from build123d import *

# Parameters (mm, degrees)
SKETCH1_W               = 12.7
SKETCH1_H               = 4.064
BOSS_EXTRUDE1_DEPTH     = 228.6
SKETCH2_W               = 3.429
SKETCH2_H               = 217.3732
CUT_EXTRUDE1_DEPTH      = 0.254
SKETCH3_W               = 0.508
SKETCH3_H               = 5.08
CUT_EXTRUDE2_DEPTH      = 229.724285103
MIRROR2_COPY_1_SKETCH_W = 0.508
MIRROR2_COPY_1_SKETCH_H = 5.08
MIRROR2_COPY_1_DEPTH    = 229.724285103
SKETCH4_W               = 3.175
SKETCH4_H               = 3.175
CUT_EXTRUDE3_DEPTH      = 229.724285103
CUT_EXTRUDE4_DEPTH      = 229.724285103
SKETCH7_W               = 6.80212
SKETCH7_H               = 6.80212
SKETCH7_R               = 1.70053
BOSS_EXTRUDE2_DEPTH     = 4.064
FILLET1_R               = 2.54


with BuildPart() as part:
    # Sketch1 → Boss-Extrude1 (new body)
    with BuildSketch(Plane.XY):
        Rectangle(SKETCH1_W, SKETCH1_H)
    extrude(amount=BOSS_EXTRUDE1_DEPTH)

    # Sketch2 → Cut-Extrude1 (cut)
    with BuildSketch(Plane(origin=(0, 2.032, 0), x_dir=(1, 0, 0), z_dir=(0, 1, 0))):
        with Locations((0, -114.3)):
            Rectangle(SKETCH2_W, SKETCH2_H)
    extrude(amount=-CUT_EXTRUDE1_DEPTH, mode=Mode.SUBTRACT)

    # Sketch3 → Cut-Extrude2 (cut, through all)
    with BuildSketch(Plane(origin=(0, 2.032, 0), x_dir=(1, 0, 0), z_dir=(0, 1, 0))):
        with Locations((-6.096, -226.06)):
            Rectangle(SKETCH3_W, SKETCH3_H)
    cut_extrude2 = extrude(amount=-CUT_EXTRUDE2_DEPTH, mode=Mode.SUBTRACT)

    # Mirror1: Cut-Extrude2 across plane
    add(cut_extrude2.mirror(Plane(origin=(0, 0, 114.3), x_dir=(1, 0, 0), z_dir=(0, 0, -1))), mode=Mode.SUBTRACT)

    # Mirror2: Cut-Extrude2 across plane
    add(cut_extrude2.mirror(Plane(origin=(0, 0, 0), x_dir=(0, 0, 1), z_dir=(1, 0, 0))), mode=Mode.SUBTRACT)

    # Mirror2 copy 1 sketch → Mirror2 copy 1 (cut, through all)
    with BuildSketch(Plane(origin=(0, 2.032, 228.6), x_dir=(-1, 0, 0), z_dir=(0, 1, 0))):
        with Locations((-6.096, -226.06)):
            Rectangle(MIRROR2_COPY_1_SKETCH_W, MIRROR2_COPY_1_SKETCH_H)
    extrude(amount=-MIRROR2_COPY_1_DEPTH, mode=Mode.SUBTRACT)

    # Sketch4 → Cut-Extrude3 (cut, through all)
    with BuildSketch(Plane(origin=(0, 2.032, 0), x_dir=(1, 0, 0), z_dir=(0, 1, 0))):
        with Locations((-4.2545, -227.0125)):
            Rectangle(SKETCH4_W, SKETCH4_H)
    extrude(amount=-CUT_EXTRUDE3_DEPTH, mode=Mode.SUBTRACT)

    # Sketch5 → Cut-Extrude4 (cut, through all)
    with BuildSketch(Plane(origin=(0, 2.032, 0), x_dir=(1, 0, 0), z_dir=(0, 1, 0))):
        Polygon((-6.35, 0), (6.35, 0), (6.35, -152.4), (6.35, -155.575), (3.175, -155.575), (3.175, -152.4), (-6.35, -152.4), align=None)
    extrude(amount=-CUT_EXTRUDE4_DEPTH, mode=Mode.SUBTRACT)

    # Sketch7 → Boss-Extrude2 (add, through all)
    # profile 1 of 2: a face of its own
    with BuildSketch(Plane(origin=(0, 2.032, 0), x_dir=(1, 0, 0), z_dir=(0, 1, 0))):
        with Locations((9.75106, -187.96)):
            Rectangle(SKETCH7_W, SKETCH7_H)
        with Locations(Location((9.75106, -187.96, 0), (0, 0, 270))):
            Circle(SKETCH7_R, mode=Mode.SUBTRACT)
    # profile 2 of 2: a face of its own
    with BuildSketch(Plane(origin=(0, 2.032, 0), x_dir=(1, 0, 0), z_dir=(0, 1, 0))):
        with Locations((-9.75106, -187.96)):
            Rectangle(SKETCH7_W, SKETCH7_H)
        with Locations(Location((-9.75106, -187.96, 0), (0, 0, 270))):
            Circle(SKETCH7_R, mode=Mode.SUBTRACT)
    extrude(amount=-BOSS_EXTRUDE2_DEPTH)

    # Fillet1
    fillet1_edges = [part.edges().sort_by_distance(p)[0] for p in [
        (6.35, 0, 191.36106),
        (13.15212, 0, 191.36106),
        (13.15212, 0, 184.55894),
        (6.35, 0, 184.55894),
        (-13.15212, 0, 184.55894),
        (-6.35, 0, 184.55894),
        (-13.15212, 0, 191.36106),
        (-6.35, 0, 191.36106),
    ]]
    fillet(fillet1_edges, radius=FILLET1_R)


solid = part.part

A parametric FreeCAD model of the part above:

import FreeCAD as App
import Part
import Sketcher

V = App.Vector
Q = App.Units.Quantity


def edges_at(feature, points):
    """Names of the edges that pass closest to the given points."""
    edges = feature.Shape.Edges
    near = lambda p: min(range(len(edges)), key=lambda i: edges[i].distToShape(Part.Vertex(*p))[0])
    return sorted({f"Edge{near(p) + 1}" for p in points})

doc = App.newDocument("Part")
body = doc.addObject("PartDesign::Body", "Body")

# Sketch on XY plane
sketch1 = body.newObject("Sketcher::SketchObject", "Sketch")
sketch1.AttachmentSupport = (doc.getObject("XY_Plane"), [""])
sketch1.MapMode = "FlatFace"
sketch1.addGeometry(Part.LineSegment(V(-6.3, 2, 0), V(-6.3, -2, 0)), False)
sketch1.addGeometry(Part.LineSegment(V(-6.3, -2, 0), V(6.3, -2, 0)), False)
sketch1.addGeometry(Part.LineSegment(V(6.3, -2, 0), V(6.3, 2, 0)), False)
sketch1.addGeometry(Part.LineSegment(V(6.3, 2, 0), V(-6.3, 2, 0)), False)
sketch1.addConstraint(Sketcher.Constraint("Coincident", 0, 2, 1, 1))
sketch1.addConstraint(Sketcher.Constraint("Coincident", 1, 2, 2, 1))
sketch1.addConstraint(Sketcher.Constraint("Coincident", 2, 2, 3, 1))
sketch1.addConstraint(Sketcher.Constraint("Coincident", 3, 2, 0, 1))
sketch1.addConstraint(Sketcher.Constraint("Vertical", 0))
sketch1.addConstraint(Sketcher.Constraint("Horizontal", 1))
sketch1.addConstraint(Sketcher.Constraint("Vertical", 2))
sketch1.addConstraint(Sketcher.Constraint("Horizontal", 3))
sketch1.addConstraint(Sketcher.Constraint("Symmetric", 0, 2, 2, 2, -1, 1))
sketch1.addConstraint(Sketcher.Constraint("DistanceX", 1, 1, 1, 2, Q("0.5 in")))
sketch1.addConstraint(Sketcher.Constraint("DistanceY", 0, 2, 0, 1, Q("0.16 in")))
pad1 = body.newObject("PartDesign::Pad", "Pad")
pad1.Profile = sketch1
pad1.Length = Q("9 in")

# Sketch on XZ plane
sketch2 = body.newObject("Sketcher::SketchObject", "Sketch001")
sketch2.AttachmentSupport = (doc.getObject("XZ_Plane"), [""])
sketch2.MapMode = "FlatFace"
sketch2.AttachmentOffset = App.Placement(V(0, 0, -0.08 * 25.4), App.Rotation())
sketch2.addGeometry(Part.LineSegment(V(-1.7, 5.6, 0), V(-1.7, 223, 0)), False)
sketch2.addGeometry(Part.LineSegment(V(-1.7, 223, 0), V(1.7, 223, 0)), False)
sketch2.addGeometry(Part.LineSegment(V(1.7, 223, 0), V(1.7, 5.6, 0)), False)
sketch2.addGeometry(Part.LineSegment(V(1.7, 5.6, 0), V(-1.7, 5.6, 0)), False)
sketch2.addConstraint(Sketcher.Constraint("Coincident", 0, 2, 1, 1))
sketch2.addConstraint(Sketcher.Constraint("Coincident", 1, 2, 2, 1))
sketch2.addConstraint(Sketcher.Constraint("Coincident", 2, 2, 3, 1))
sketch2.addConstraint(Sketcher.Constraint("Coincident", 3, 2, 0, 1))
sketch2.addConstraint(Sketcher.Constraint("Vertical", 0))
sketch2.addConstraint(Sketcher.Constraint("Horizontal", 1))
sketch2.addConstraint(Sketcher.Constraint("Vertical", 2))
sketch2.addConstraint(Sketcher.Constraint("Horizontal", 3))
sketch2.addConstraint(Sketcher.Constraint("DistanceX", 1, 1, 1, 2, Q("0.135 in")))
sketch2.addConstraint(Sketcher.Constraint("DistanceY", 0, 1, 0, 2, Q("8.558 in")))
sketch2.addConstraint(Sketcher.Constraint("DistanceY", -1, 1, 0, 2, Q("8.779 in")))
sketch2.addConstraint(Sketcher.Constraint("DistanceX", 0, 2, -1, 1, Q("0.0675 in")))
pocket1 = body.newObject("PartDesign::Pocket", "Pocket")
pocket1.Profile = sketch2
pocket1.Length = Q("0.01 in")
pocket1.Reversed = True

# Sketch on XZ plane
sketch3 = body.newObject("Sketcher::SketchObject", "Sketch002")
sketch3.AttachmentSupport = (doc.getObject("XZ_Plane"), [""])
sketch3.MapMode = "FlatFace"
sketch3.AttachmentOffset = App.Placement(V(0, 0, -0.08 * 25.4), App.Rotation())
sketch3.addGeometry(Part.LineSegment(V(-6.3, 223.5, 0), V(-6.3, 228.6, 0)), False)
sketch3.addGeometry(Part.LineSegment(V(-6.3, 228.6, 0), V(-5.8, 228.6, 0)), False)
sketch3.addGeometry(Part.LineSegment(V(-5.8, 228.6, 0), V(-5.8, 223.5, 0)), False)
sketch3.addGeometry(Part.LineSegment(V(-5.8, 223.5, 0), V(-6.3, 223.5, 0)), False)
sketch3.addConstraint(Sketcher.Constraint("Coincident", 0, 2, 1, 1))
sketch3.addConstraint(Sketcher.Constraint("Coincident", 1, 2, 2, 1))
sketch3.addConstraint(Sketcher.Constraint("Coincident", 2, 2, 3, 1))
sketch3.addConstraint(Sketcher.Constraint("Coincident", 3, 2, 0, 1))
sketch3.addConstraint(Sketcher.Constraint("Vertical", 0))
sketch3.addConstraint(Sketcher.Constraint("Horizontal", 1))
sketch3.addConstraint(Sketcher.Constraint("Vertical", 2))
sketch3.addConstraint(Sketcher.Constraint("Horizontal", 3))
sketch3.addConstraint(Sketcher.Constraint("DistanceY", 0, 1, 0, 2, Q("0.2 in")))
sketch3.addConstraint(Sketcher.Constraint("DistanceY", -1, 1, 0, 2, Q("9 in")))
sketch3.addConstraint(Sketcher.Constraint("DistanceX", 1, 1, 1, 2, Q("0.02 in")))
sketch3.addConstraint(Sketcher.Constraint("DistanceX", 0, 2, -1, 1, Q("0.25 in")))
pocket2 = body.newObject("PartDesign::Pocket", "Pocket001")
pocket2.Profile = sketch3
pocket2.Type = "ThroughAll"
pocket2.Reversed = True
doc.recompute()

datumplane = body.newObject("PartDesign::Plane", "DatumPlane")
datumplane.AttachmentSupport = (doc.getObject("XY_Plane"), [""])
datumplane.MapMode = "FlatFace"
datumplane.AttachmentOffset = App.Placement(V(0, 0, 4.5 * 25.4), App.Rotation())
mirrored = body.newObject("PartDesign::Mirrored", "Mirrored")
mirrored.Originals = [pocket2]
mirrored.MirrorPlane = (datumplane, [""])
body.Tip = mirrored
doc.recompute()

mirrored2 = body.newObject("PartDesign::Mirrored", "Mirrored001")
mirrored2.Originals = [pocket2]
mirrored2.MirrorPlane = (doc.getObject("YZ_Plane"), [""])
body.Tip = mirrored2

# Sketch on XZ plane
sketch4 = body.newObject("Sketcher::SketchObject", "Sketch003")
sketch4.AttachmentSupport = (doc.getObject("XZ_Plane"), [""])
sketch4.MapMode = "FlatFace"
sketch4.AttachmentOffset = App.Placement(V(0, 0, -0.08 * 25.4), App.Rotation())
sketch4.addGeometry(Part.LineSegment(V(6.3, 5.1, 0), V(6.3, 0, 0)), False)
sketch4.addGeometry(Part.LineSegment(V(6.3, 0, 0), V(5.8, 0, 0)), False)
sketch4.addGeometry(Part.LineSegment(V(5.8, 0, 0), V(5.8, 5.1, 0)), False)
sketch4.addGeometry(Part.LineSegment(V(5.8, 5.1, 0), V(6.3, 5.1, 0)), False)
sketch4.addConstraint(Sketcher.Constraint("Coincident", 0, 2, 1, 1))
sketch4.addConstraint(Sketcher.Constraint("Coincident", 1, 2, 2, 1))
sketch4.addConstraint(Sketcher.Constraint("Coincident", 2, 2, 3, 1))
sketch4.addConstraint(Sketcher.Constraint("Coincident", 3, 2, 0, 1))
sketch4.addConstraint(Sketcher.Constraint("Vertical", 0))
sketch4.addConstraint(Sketcher.Constraint("Horizontal", 1))
sketch4.addConstraint(Sketcher.Constraint("Vertical", 2))
sketch4.addConstraint(Sketcher.Constraint("Horizontal", 3))
sketch4.addConstraint(Sketcher.Constraint("PointOnObject", 0, 2, -1))
sketch4.addConstraint(Sketcher.Constraint("DistanceY", 0, 2, 0, 1, Q("0.2 in")))
sketch4.addConstraint(Sketcher.Constraint("DistanceX", 1, 2, 1, 1, Q("0.02 in")))
sketch4.addConstraint(Sketcher.Constraint("DistanceX", -1, 1, 0, 2, Q("0.25 in")))
pocket3 = body.newObject("PartDesign::Pocket", "Pocket002")
pocket3.Profile = sketch4
pocket3.Type = "ThroughAll"
pocket3.Reversed = True

# Sketch on XZ plane
sketch5 = body.newObject("Sketcher::SketchObject", "Sketch004")
sketch5.AttachmentSupport = (doc.getObject("XZ_Plane"), [""])
sketch5.MapMode = "FlatFace"
sketch5.AttachmentOffset = App.Placement(V(0, 0, -0.08 * 25.4), App.Rotation())
sketch5.addGeometry(Part.LineSegment(V(-5.8, 225.4, 0), V(-5.8, 228.6, 0)), False)
sketch5.addGeometry(Part.LineSegment(V(-5.8, 228.6, 0), V(-2.7, 228.6, 0)), False)
sketch5.addGeometry(Part.LineSegment(V(-2.7, 228.6, 0), V(-2.7, 225.4, 0)), False)
sketch5.addGeometry(Part.LineSegment(V(-2.7, 225.4, 0), V(-5.8, 225.4, 0)), False)
sketch5.addConstraint(Sketcher.Constraint("Coincident", 0, 2, 1, 1))
sketch5.addConstraint(Sketcher.Constraint("Coincident", 1, 2, 2, 1))
sketch5.addConstraint(Sketcher.Constraint("Coincident", 2, 2, 3, 1))
sketch5.addConstraint(Sketcher.Constraint("Coincident", 3, 2, 0, 1))
sketch5.addConstraint(Sketcher.Constraint("Vertical", 0))
sketch5.addConstraint(Sketcher.Constraint("Horizontal", 1))
sketch5.addConstraint(Sketcher.Constraint("Vertical", 2))
sketch5.addConstraint(Sketcher.Constraint("Horizontal", 3))
sketch5.addConstraint(Sketcher.Constraint("Equal", 3, 0))
sketch5.addConstraint(Sketcher.Constraint("DistanceY", -1, 1, 0, 2, Q("9 in")))
sketch5.addConstraint(Sketcher.Constraint("DistanceX", 1, 1, 1, 2, Q("0.125 in")))
sketch5.addConstraint(Sketcher.Constraint("DistanceX", 0, 2, -1, 1, Q("0.23 in")))
pocket4 = body.newObject("PartDesign::Pocket", "Pocket003")
pocket4.Profile = sketch5
pocket4.Type = "ThroughAll"
pocket4.Reversed = True

# Sketch on XZ plane
sketch6 = body.newObject("Sketcher::SketchObject", "Sketch005")
sketch6.AttachmentSupport = (doc.getObject("XZ_Plane"), [""])
sketch6.MapMode = "FlatFace"
sketch6.AttachmentOffset = App.Placement(V(0, 0, -0.08 * 25.4), App.Rotation())
sketch6.addGeometry(Part.LineSegment(V(6.3, 0, 0), V(-6.3, 0, 0)), False)
sketch6.addGeometry(Part.LineSegment(V(-6.3, 0, 0), V(-6.3, 152.4, 0)), False)
sketch6.addGeometry(Part.LineSegment(V(-6.3, 152.4, 0), V(3.2, 152.4, 0)), False)
sketch6.addGeometry(Part.LineSegment(V(3.2, 152.4, 0), V(3.2, 155.6, 0)), False)
sketch6.addGeometry(Part.LineSegment(V(3.2, 155.6, 0), V(6.3, 155.6, 0)), False)
sketch6.addGeometry(Part.LineSegment(V(6.3, 155.6, 0), V(6.3, 0, 0)), False)
sketch6.addConstraint(Sketcher.Constraint("Coincident", 0, 2, 1, 1))
sketch6.addConstraint(Sketcher.Constraint("Coincident", 1, 2, 2, 1))
sketch6.addConstraint(Sketcher.Constraint("Coincident", 2, 2, 3, 1))
sketch6.addConstraint(Sketcher.Constraint("Coincident", 3, 2, 4, 1))
sketch6.addConstraint(Sketcher.Constraint("Coincident", 4, 2, 5, 1))
sketch6.addConstraint(Sketcher.Constraint("Coincident", 5, 2, 0, 1))
sketch6.addConstraint(Sketcher.Constraint("Horizontal", 0))
sketch6.addConstraint(Sketcher.Constraint("Vertical", 1))
sketch6.addConstraint(Sketcher.Constraint("Horizontal", 2))
sketch6.addConstraint(Sketcher.Constraint("Vertical", 3))
sketch6.addConstraint(Sketcher.Constraint("Horizontal", 4))
sketch6.addConstraint(Sketcher.Constraint("Vertical", 5))
sketch6.addConstraint(Sketcher.Constraint("Symmetric", 0, 2, 5, 2, -1, 1))
sketch6.addConstraint(Sketcher.Constraint("Equal", 4, 3))
sketch6.addConstraint(Sketcher.Constraint("DistanceY", 1, 1, 1, 2, Q("6 in")))
sketch6.addConstraint(Sketcher.Constraint("DistanceX", 0, 2, 0, 1, Q("0.5 in")))
sketch6.addConstraint(Sketcher.Constraint("DistanceX", 2, 1, 2, 2, Q("0.375 in")))
pocket5 = body.newObject("PartDesign::Pocket", "Pocket004")
pocket5.Profile = sketch6
pocket5.Type = "ThroughAll"
pocket5.Reversed = True

# Sketch on XZ plane
sketch7 = body.newObject("Sketcher::SketchObject", "Sketch006")
sketch7.AttachmentSupport = (doc.getObject("XZ_Plane"), [""])
sketch7.MapMode = "FlatFace"
sketch7.AttachmentOffset = App.Placement(V(0, 0, -0.08 * 25.4), App.Rotation())
sketch7.addGeometry(Part.LineSegment(V(6.3, 184.6, 0), V(6.3, 191.4, 0)), False)
sketch7.addGeometry(Part.LineSegment(V(6.3, 191.4, 0), V(13.2, 191.4, 0)), False)
sketch7.addGeometry(Part.LineSegment(V(13.2, 191.4, 0), V(13.2, 184.6, 0)), False)
sketch7.addGeometry(Part.LineSegment(V(13.2, 184.6, 0), V(6.3, 184.6, 0)), False)
sketch7.addGeometry(Part.Circle(V(9.8, 188, 0), V(0, 0, 1), 1.7), False)
sketch7.addGeometry(Part.LineSegment(V(-13.2, 184.6, 0), V(-13.2, 191.4, 0)), False)
sketch7.addGeometry(Part.LineSegment(V(-13.2, 191.4, 0), V(-6.3, 191.4, 0)), False)
sketch7.addGeometry(Part.LineSegment(V(-6.3, 191.4, 0), V(-6.3, 184.6, 0)), False)
sketch7.addGeometry(Part.LineSegment(V(-6.3, 184.6, 0), V(-13.2, 184.6, 0)), False)
sketch7.addGeometry(Part.Circle(V(-9.8, 188, 0), V(0, 0, 1), 1.7), False)
sketch7.addConstraint(Sketcher.Constraint("Coincident", 0, 2, 1, 1))
sketch7.addConstraint(Sketcher.Constraint("Coincident", 1, 2, 2, 1))
sketch7.addConstraint(Sketcher.Constraint("Coincident", 2, 2, 3, 1))
sketch7.addConstraint(Sketcher.Constraint("Coincident", 3, 2, 0, 1))
sketch7.addConstraint(Sketcher.Constraint("Coincident", 5, 2, 6, 1))
sketch7.addConstraint(Sketcher.Constraint("Coincident", 6, 2, 7, 1))
sketch7.addConstraint(Sketcher.Constraint("Coincident", 7, 2, 8, 1))
sketch7.addConstraint(Sketcher.Constraint("Coincident", 8, 2, 5, 1))
sketch7.addConstraint(Sketcher.Constraint("Vertical", 0))
sketch7.addConstraint(Sketcher.Constraint("Horizontal", 1))
sketch7.addConstraint(Sketcher.Constraint("Vertical", 2))
sketch7.addConstraint(Sketcher.Constraint("Horizontal", 3))
sketch7.addConstraint(Sketcher.Constraint("Vertical", 5))
sketch7.addConstraint(Sketcher.Constraint("Horizontal", 6))
sketch7.addConstraint(Sketcher.Constraint("Vertical", 7))
sketch7.addConstraint(Sketcher.Constraint("Horizontal", 8))
sketch7.addConstraint(Sketcher.Constraint("Equal", 4, 9))
sketch7.addConstraint(Sketcher.Constraint("Symmetric", 4, 3, 9, 3, -2))
sketch7.addConstraint(Sketcher.Constraint("Symmetric", 1, 2, 5, 2, -2))
sketch7.addConstraint(Sketcher.Constraint("Symmetric", 3, 2, 7, 2, -2))
sketch7.addConstraint(Sketcher.Constraint("Equal", 8, 0))
sketch7.addConstraint(Sketcher.Constraint("Diameter", 4, Q("0.1339 in")))
sketch7.addConstraint(Sketcher.Constraint("DistanceY", -1, 1, 4, 3, Q("7.4 in")))
sketch7.addConstraint(Sketcher.Constraint("DistanceX", 6, 2, 0, 2, Q("0.5 in")))
sketch7.addConstraint(Sketcher.Constraint("DistanceX", 1, 1, 1, 2, Q("0.2678 in")))
sketch7.addConstraint(Sketcher.Constraint("DistanceX", -1, 1, 4, 3, Q("0.3839 in")))
sketch7.addConstraint(Sketcher.Constraint("DistanceY", -1, 1, 0, 2, Q("7.5339 in")))
pad2 = body.newObject("PartDesign::Pad", "Pad001")
pad2.Profile = sketch7
pad2.Length = Q("0.16 in")
doc.recompute()

fillet = body.newObject("PartDesign::Fillet", "Fillet")
fillet.Base = (pad2, edges_at(pad2, [
    (6.35, 0, 191.361),
    (13.152, 0, 191.361),
    (13.152, 0, 184.559),
    (6.35, 0, 184.559),
    (-13.152, 0, 184.559),
    (-6.35, 0, 184.559),
    (-13.152, 0, 191.361),
    (-6.35, 0, 191.361),
]))
fillet.Radius = Q("0.1 in")

doc.recompute()
